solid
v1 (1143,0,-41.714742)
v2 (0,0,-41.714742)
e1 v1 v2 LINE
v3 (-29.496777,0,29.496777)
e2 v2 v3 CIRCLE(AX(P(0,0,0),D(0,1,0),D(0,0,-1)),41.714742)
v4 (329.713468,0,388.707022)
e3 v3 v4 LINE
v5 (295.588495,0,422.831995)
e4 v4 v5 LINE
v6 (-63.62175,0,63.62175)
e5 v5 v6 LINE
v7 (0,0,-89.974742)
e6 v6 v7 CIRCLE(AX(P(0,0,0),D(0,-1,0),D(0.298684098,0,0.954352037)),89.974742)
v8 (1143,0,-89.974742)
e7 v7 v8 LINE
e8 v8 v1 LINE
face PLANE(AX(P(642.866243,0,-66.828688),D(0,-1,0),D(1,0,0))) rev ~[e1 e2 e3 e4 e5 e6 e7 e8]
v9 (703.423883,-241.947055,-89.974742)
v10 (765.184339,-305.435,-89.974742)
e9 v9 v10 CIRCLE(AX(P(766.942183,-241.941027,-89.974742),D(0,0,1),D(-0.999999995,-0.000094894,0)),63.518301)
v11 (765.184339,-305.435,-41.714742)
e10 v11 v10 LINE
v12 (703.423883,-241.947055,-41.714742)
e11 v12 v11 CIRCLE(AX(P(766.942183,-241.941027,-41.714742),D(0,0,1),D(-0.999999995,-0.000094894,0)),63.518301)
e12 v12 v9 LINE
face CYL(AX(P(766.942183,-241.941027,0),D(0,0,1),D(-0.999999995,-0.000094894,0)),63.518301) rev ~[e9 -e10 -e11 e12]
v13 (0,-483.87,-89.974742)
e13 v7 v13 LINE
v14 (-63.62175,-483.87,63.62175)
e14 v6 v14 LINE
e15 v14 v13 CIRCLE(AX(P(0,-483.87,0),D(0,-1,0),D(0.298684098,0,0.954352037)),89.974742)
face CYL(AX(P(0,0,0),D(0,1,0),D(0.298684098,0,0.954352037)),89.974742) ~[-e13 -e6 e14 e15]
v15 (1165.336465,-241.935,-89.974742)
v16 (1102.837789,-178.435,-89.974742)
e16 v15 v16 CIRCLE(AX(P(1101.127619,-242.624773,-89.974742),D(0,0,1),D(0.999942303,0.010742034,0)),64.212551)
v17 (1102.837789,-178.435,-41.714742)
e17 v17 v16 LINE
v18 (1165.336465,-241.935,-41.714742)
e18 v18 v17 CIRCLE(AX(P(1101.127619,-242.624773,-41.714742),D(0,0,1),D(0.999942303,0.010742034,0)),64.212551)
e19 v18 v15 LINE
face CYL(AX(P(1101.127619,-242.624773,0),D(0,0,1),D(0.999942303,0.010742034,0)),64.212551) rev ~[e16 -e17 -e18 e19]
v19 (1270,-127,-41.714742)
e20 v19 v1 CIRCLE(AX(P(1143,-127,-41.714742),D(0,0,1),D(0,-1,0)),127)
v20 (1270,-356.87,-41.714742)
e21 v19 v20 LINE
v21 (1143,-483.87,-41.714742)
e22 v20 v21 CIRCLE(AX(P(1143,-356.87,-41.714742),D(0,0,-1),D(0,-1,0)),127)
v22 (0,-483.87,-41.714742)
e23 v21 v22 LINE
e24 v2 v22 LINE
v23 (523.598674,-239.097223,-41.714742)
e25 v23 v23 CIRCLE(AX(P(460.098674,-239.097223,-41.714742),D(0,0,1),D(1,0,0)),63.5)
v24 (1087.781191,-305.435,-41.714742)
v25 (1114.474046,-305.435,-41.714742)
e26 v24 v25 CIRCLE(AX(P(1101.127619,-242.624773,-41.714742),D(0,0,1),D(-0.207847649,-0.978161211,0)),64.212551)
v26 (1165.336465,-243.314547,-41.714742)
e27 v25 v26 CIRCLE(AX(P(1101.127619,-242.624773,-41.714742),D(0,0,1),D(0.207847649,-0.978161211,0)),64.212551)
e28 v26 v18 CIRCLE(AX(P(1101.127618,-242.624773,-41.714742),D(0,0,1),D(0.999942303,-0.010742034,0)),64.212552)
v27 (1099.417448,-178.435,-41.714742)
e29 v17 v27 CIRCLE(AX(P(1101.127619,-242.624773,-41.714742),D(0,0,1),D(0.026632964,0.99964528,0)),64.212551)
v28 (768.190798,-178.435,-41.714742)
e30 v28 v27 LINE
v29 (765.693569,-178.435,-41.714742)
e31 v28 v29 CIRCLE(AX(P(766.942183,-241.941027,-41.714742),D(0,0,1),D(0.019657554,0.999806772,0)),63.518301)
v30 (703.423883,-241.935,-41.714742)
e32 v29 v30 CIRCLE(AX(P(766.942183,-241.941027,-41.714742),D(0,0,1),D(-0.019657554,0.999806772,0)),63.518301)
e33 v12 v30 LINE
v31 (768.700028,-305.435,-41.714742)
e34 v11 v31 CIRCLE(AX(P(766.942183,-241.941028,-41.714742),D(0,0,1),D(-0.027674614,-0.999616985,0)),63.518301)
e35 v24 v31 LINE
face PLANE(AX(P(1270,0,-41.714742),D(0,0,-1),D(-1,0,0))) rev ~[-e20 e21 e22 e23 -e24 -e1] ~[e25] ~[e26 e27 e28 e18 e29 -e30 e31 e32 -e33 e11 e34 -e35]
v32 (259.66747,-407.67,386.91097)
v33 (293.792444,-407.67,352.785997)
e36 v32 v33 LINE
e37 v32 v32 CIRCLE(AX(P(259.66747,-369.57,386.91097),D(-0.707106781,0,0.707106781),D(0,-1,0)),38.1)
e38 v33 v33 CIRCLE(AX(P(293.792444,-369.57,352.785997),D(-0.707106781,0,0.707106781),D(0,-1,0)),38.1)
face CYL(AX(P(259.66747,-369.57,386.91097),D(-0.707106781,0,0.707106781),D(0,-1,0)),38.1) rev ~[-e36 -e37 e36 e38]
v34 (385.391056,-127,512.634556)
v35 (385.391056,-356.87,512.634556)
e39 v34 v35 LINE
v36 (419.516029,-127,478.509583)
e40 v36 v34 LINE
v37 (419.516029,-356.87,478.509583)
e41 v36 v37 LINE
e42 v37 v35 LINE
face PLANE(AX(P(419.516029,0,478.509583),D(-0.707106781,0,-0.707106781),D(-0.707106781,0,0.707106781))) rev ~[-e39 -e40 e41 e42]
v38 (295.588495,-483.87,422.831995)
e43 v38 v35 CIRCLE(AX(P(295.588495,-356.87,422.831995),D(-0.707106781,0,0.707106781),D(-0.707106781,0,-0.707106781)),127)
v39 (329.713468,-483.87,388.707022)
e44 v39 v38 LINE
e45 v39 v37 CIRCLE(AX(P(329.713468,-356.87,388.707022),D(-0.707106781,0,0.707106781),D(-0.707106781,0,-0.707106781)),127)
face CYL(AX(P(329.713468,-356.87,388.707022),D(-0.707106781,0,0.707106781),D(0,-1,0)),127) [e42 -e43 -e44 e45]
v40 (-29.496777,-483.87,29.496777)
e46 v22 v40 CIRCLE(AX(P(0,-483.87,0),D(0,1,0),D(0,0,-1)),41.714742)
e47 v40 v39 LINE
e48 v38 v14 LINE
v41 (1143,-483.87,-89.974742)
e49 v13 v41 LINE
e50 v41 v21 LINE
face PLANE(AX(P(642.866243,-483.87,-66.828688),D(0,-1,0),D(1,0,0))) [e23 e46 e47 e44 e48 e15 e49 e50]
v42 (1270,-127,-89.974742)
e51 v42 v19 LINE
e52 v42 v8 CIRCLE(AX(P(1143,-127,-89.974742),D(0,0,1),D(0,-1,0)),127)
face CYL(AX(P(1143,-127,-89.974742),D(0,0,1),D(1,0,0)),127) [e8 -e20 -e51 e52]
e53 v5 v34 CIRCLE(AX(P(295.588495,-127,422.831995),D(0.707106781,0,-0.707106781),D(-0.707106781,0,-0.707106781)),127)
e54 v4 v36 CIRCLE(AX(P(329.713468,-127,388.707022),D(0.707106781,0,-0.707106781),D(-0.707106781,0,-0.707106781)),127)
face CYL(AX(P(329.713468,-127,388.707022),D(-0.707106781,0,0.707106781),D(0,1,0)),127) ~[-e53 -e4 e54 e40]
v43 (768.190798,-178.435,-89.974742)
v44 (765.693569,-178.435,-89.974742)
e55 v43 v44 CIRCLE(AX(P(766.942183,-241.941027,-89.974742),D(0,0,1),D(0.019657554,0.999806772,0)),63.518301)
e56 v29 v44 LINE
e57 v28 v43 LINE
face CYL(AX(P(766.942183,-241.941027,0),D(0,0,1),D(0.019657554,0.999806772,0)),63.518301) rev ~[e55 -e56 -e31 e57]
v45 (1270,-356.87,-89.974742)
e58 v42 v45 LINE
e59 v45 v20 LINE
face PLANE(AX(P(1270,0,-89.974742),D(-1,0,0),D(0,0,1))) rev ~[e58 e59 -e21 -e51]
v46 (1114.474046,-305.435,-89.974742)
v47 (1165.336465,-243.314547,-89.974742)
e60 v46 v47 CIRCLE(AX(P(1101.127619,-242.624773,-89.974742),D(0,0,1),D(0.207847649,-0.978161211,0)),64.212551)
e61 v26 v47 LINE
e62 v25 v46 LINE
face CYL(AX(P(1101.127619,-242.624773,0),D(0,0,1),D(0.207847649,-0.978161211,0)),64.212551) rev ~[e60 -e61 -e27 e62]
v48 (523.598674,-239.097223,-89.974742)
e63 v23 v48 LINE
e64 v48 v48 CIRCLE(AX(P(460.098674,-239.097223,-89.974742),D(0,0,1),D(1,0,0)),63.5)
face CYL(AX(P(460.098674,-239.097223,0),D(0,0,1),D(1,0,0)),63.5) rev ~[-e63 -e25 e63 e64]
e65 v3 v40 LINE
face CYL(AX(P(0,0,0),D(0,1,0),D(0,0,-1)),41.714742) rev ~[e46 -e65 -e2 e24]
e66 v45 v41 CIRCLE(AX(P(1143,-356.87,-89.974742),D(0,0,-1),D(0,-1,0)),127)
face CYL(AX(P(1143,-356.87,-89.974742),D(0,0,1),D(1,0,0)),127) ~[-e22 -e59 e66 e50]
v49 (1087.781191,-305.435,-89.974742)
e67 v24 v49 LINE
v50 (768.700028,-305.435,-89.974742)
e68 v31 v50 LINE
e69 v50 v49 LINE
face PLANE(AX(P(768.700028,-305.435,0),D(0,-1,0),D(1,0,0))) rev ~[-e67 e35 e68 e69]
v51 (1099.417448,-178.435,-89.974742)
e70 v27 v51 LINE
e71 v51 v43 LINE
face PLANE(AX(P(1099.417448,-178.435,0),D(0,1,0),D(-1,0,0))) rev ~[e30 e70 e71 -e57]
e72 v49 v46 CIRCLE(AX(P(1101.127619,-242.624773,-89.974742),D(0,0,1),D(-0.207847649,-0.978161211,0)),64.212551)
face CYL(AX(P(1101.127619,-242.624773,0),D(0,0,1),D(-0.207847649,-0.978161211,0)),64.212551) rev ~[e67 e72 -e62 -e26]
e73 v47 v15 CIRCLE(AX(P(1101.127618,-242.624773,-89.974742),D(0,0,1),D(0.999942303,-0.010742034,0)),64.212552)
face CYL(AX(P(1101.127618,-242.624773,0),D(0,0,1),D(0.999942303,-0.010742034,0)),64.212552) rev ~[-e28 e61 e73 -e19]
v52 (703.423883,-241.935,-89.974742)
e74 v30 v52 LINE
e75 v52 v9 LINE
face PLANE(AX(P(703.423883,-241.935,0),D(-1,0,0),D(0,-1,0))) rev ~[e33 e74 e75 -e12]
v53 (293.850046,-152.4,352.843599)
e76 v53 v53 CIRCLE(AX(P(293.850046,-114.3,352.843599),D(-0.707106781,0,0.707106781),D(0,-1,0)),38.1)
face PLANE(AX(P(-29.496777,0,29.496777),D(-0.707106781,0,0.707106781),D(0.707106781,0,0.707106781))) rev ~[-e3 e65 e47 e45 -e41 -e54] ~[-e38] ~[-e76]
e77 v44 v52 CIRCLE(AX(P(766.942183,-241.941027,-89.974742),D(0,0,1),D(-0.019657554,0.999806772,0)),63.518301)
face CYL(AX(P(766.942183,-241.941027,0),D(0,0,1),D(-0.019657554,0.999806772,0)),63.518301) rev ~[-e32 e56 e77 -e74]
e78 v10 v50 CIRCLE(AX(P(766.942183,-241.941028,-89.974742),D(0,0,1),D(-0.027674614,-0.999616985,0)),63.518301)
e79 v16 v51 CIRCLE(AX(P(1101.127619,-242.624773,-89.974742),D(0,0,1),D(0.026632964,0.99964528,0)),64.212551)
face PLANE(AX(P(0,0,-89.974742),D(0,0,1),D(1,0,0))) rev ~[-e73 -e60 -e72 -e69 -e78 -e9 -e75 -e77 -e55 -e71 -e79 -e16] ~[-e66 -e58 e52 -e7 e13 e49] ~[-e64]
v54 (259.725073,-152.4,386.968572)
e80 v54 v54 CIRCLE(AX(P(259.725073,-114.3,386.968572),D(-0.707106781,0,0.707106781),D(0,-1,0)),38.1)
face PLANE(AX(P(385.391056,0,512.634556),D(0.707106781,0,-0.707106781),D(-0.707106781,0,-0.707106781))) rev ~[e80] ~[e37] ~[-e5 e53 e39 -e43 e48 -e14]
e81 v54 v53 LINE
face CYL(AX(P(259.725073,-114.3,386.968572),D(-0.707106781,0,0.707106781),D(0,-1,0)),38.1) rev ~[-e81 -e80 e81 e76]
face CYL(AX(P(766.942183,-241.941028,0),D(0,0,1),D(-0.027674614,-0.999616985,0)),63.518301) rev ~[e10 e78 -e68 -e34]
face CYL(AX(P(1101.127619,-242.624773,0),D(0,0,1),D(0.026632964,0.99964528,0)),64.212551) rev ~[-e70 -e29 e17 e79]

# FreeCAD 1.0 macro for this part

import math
import FreeCAD as App
import Part
import Sketcher

V = App.Vector
Q = App.Units.Quantity


def edges_at(feature, points):
    """Names of the edges that pass closest to the given points."""
    edges = feature.Shape.Edges
    near = lambda p: min(range(len(edges)), key=lambda i: edges[i].distToShape(Part.Vertex(*p))[0])
    return sorted({f"Edge{near(p) + 1}" for p in points})

doc = App.newDocument("Part")
body = doc.addObject("PartDesign::Body", "Body")

sketch1 = body.newObject("Sketcher::SketchObject", "Sketch")
sketch1.AttachmentSupport = (doc.getObject("XZ_Plane"), [""])
sketch1.MapMode = "FlatFace"
sketch1.addGeometry([
    Part.LineSegment(V(1270, -41.714742, 0), V(0, -41.714742, 0)),
    Part.ArcOfCircle(Part.Circle(V(0, 0, 0), V(0, 0, 1), 41.714742), math.radians(135), math.radians(270)),
    Part.LineSegment(V(-29.496777, 29.496777, 0), V(419.516029, 478.509583, 0)),
    Part.LineSegment(V(419.516029, 478.509583, 0), V(385.391056, 512.634556, 0)),
    Part.LineSegment(V(385.391056, 512.634556, 0), V(-63.62175, 63.62175, 0)),
    Part.ArcOfCircle(Part.Circle(V(0, 0, 0), V(0, 0, 1), 89.974742), math.radians(135), math.radians(270)),
    Part.LineSegment(V(0, -89.974742, 0), V(1270, -89.974742, 0)),
    Part.LineSegment(V(1270, -89.974742, 0), V(1270, -41.714742, 0)),
], False)
sketch1.addConstraint([
    Sketcher.Constraint("Tangent", 0, 2, 1, 2),
    Sketcher.Constraint("Tangent", 1, 1, 2, 1),
    Sketcher.Constraint("Coincident", 2, 2, 3, 1),
    Sketcher.Constraint("Coincident", 3, 2, 4, 1),
    Sketcher.Constraint("Tangent", 4, 2, 5, 1),
    Sketcher.Constraint("Tangent", 5, 2, 6, 1),
    Sketcher.Constraint("Coincident", 6, 2, 7, 1),
    Sketcher.Constraint("Coincident", 7, 2, 0, 1),
    Sketcher.Constraint("Horizontal", 0),
    Sketcher.Constraint("Horizontal", 6),
    Sketcher.Constraint("Vertical", 7),
    Sketcher.Constraint("Coincident", 1, 3, -1, 1),
    Sketcher.Constraint("Coincident", 5, 3, -1, 1),
    Sketcher.Constraint("Perpendicular", 2, 3),
    Sketcher.Constraint("Perpendicular", 3, 4),
    Sketcher.Constraint("DistanceX", 0, 2, 0, 1, Q("50 in")),
    Sketcher.Constraint("Distance", 2, Q("25 in")),
    Sketcher.Constraint("DistanceY", 7, 1, 7, 2, Q("1.9 in")),
    Sketcher.Constraint("Angle", 2, Q("45 deg")),
    Sketcher.Constraint("Radius", 1, Q("41.714742 mm")),
])
pad1 = body.newObject("PartDesign::Pad", "Pad")
pad1.Profile = sketch1
pad1.Length = Q("19.05 in")
doc.recompute()

fillet = body.newObject("PartDesign::Fillet", "Fillet")
fillet.Base = (pad1, edges_at(pad1, [(1270, -483.87, -65.845), (1270, 0, -65.845)]))
fillet.Radius = Q("5 in")
doc.recompute()

fillet2 = body.newObject("PartDesign::Fillet", "Fillet001")
fillet2.Base = (fillet, edges_at(fillet, [(402.454, -483.87, 495.572), (402.454, 0, 495.572)]))
fillet2.Radius = Q("5 in")

sketch2 = body.newObject("Sketcher::SketchObject", "Sketch001")
sketch2.AttachmentSupport = (doc.getObject("XY_Plane"), [""])
sketch2.MapMode = "FlatFace"
sketch2.addGeometry([
    Part.ArcOfCircle(Part.Circle(V(766.942183, -241.941027, 0), V(0, 0, 1), 63.518301), math.radians(88.873633), math.radians(91.126367)),
    Part.ArcOfCircle(Part.Circle(V(766.942183, -241.941027, 0), V(0, 0, 1), 63.518301), math.radians(91.126367), math.radians(179.994563)),
    Part.LineSegment(V(703.423883, -241.935, 0), V(703.423883, -241.947055, 0)),
    Part.ArcOfCircle(Part.Circle(V(766.942183, -241.941027, 0), V(0, 0, 1), 63.518301), math.radians(-179.994563), math.radians(-91.585841)),
    Part.ArcOfCircle(Part.Circle(V(766.942183, -241.941028, 0), V(0, 0, 1), 63.518301), math.radians(-91.585841), math.radians(-88.414159)),
    Part.LineSegment(V(768.700028, -305.435, 0), V(1087.781191, -305.435, 0)),
    Part.ArcOfCircle(Part.Circle(V(1101.127619, -242.624773, 0), V(0, 0, 1), 64.212551), math.radians(-101.996249), math.radians(-78.003751)),
    Part.ArcOfCircle(Part.Circle(V(1101.127619, -242.624773, 0), V(0, 0, 1), 64.212551), math.radians(-78.003751), math.radians(-0.615485)),
    Part.ArcOfCircle(Part.Circle(V(1101.127618, -242.624773, 0), V(0, 0, 1), 64.212552), math.radians(-0.615485), math.radians(0.615485)),
    Part.ArcOfCircle(Part.Circle(V(1101.127619, -242.624773, 0), V(0, 0, 1), 64.212551), math.radians(0.615485), math.radians(88.473863)),
    Part.ArcOfCircle(Part.Circle(V(1101.127619, -242.624773, 0), V(0, 0, 1), 64.212551), math.radians(88.473863), math.radians(91.526137)),
    Part.LineSegment(V(1099.417448, -178.435, 0), V(768.190798, -178.435, 0)),
    Part.Circle(V(460.098674, -239.097223, 0), V(0, 0, 1), 63.5),
], False)
sketch2.addConstraint([
    Sketcher.Constraint("Tangent", 0, 2, 1, 1),
    Sketcher.Constraint("Coincident", 1, 2, 2, 1),
    Sketcher.Constraint("Coincident", 2, 2, 3, 1),
    Sketcher.Constraint("Tangent", 3, 2, 4, 1),
    Sketcher.Constraint("Coincident", 4, 2, 5, 1),
    Sketcher.Constraint("Coincident", 5, 2, 6, 1),
    Sketcher.Constraint("Tangent", 6, 2, 7, 1),
    Sketcher.Constraint("Tangent", 7, 2, 8, 1),
    Sketcher.Constraint("Tangent", 8, 2, 9, 1),
    Sketcher.Constraint("Tangent", 9, 2, 10, 1),
    Sketcher.Constraint("Coincident", 10, 2, 11, 1),
    Sketcher.Constraint("Coincident", 11, 2, 0, 1),
    Sketcher.Constraint("Vertical", 2),
    Sketcher.Constraint("Horizontal", 5),
    Sketcher.Constraint("Horizontal", 11),
    Sketcher.Constraint("Coincident", 3, 3, 0, 3),
    Sketcher.Constraint("Coincident", 8, 3, 6, 3),
    Sketcher.Constraint("Coincident", 10, 3, 6, 3),
    Sketcher.Constraint("Equal", 0, 1),
    Sketcher.Constraint("Equal", 3, 4),
    Sketcher.Constraint("Horizontal", 3, 2, 4, 2),
    Sketcher.Constraint("Horizontal", 5, 2, 6, 2),
    Sketcher.Constraint("Horizontal", 1, 2, 8, 2),
    Sketcher.Constraint("Horizontal", 0, 2, 9, 2),
    Sketcher.Constraint("Horizontal", 9, 2, 10, 2),
    Sketcher.Constraint("Vertical", 7, 2, 8, 2),
    Sketcher.Constraint("Diameter", 12, Q("5 in")),
    Sketcher.Constraint("DistanceY", 1, 2, 0, 2, Q("2.5 in")),
    Sketcher.Constraint("Radius", 0, Q("63.518301 mm")),
    Sketcher.Constraint("DistanceY", 0, 2, -1, 1, Q("7.025 in")),
    Sketcher.Constraint("DistanceY", 3, 2, -1, 1, Q("12.025 in")),
    Sketcher.Constraint("Radius", 6, Q("64.212551 mm")),
    Sketcher.Constraint("DistanceX", 5, 2, 6, 2, Q("1.0508998 in")),
    Sketcher.Constraint("DistanceX", 11, 2, 11, 1, Q("331.22665 mm")),
    Sketcher.Constraint("DistanceX", 5, 1, 5, 2, Q("319.081163 mm")),
    Sketcher.Constraint("DistanceY", 2, 2, 2, 1, Q("0.012055 mm")),
    Sketcher.Constraint("DistanceX", -1, 1, 6, 3, Q("1101.127619 mm")),
    Sketcher.Constraint("DistanceX", 12, 3, 0, 3, Q("306.843509 mm")),
    Sketcher.Constraint("DistanceY", 8, 3, 12, 3, Q("3.527551 mm")),
])
pocket1 = body.newObject("PartDesign::Pocket", "Pocket")
pocket1.Profile = sketch2
pocket1.Length = 262.895972

sketch3 = body.newObject("Sketcher::SketchObject", "Sketch002")
sketch3.Placement = App.Placement(V(-63.62175, 0, 63.62175), App.Rotation(V(0, -1, 0), V(0.707106781, 0, 0.707106781), V(-0.707106781, 0, 0.707106781), "ZXY"))
sketch3.addGeometry([
    Part.Circle(V(114.3, 457.281462, 0), V(0, 0, 1), 38.1),
    Part.Circle(V(369.57, 457.2, 0), V(0, 0, 1), 38.1),
], False)
sketch3.addConstraint([
    Sketcher.Constraint("Equal", 0, 1),
    Sketcher.Constraint("Diameter", 0, Q("3 in")),
    Sketcher.Constraint("DistanceY", -1, 1, 1, 3, Q("18 in")),
    Sketcher.Constraint("DistanceX", -1, 1, 0, 3, Q("4.5 in")),
    Sketcher.Constraint("DistanceX", -1, 1, 1, 3, Q("14.55 in")),
    Sketcher.Constraint("DistanceY", -1, 1, 0, 3, Q("457.281462 mm")),
])
pocket2 = body.newObject("PartDesign::Pocket", "Pocket001")
pocket2.Profile = sketch3
pocket2.Length = 111.521922

doc.recompute()
